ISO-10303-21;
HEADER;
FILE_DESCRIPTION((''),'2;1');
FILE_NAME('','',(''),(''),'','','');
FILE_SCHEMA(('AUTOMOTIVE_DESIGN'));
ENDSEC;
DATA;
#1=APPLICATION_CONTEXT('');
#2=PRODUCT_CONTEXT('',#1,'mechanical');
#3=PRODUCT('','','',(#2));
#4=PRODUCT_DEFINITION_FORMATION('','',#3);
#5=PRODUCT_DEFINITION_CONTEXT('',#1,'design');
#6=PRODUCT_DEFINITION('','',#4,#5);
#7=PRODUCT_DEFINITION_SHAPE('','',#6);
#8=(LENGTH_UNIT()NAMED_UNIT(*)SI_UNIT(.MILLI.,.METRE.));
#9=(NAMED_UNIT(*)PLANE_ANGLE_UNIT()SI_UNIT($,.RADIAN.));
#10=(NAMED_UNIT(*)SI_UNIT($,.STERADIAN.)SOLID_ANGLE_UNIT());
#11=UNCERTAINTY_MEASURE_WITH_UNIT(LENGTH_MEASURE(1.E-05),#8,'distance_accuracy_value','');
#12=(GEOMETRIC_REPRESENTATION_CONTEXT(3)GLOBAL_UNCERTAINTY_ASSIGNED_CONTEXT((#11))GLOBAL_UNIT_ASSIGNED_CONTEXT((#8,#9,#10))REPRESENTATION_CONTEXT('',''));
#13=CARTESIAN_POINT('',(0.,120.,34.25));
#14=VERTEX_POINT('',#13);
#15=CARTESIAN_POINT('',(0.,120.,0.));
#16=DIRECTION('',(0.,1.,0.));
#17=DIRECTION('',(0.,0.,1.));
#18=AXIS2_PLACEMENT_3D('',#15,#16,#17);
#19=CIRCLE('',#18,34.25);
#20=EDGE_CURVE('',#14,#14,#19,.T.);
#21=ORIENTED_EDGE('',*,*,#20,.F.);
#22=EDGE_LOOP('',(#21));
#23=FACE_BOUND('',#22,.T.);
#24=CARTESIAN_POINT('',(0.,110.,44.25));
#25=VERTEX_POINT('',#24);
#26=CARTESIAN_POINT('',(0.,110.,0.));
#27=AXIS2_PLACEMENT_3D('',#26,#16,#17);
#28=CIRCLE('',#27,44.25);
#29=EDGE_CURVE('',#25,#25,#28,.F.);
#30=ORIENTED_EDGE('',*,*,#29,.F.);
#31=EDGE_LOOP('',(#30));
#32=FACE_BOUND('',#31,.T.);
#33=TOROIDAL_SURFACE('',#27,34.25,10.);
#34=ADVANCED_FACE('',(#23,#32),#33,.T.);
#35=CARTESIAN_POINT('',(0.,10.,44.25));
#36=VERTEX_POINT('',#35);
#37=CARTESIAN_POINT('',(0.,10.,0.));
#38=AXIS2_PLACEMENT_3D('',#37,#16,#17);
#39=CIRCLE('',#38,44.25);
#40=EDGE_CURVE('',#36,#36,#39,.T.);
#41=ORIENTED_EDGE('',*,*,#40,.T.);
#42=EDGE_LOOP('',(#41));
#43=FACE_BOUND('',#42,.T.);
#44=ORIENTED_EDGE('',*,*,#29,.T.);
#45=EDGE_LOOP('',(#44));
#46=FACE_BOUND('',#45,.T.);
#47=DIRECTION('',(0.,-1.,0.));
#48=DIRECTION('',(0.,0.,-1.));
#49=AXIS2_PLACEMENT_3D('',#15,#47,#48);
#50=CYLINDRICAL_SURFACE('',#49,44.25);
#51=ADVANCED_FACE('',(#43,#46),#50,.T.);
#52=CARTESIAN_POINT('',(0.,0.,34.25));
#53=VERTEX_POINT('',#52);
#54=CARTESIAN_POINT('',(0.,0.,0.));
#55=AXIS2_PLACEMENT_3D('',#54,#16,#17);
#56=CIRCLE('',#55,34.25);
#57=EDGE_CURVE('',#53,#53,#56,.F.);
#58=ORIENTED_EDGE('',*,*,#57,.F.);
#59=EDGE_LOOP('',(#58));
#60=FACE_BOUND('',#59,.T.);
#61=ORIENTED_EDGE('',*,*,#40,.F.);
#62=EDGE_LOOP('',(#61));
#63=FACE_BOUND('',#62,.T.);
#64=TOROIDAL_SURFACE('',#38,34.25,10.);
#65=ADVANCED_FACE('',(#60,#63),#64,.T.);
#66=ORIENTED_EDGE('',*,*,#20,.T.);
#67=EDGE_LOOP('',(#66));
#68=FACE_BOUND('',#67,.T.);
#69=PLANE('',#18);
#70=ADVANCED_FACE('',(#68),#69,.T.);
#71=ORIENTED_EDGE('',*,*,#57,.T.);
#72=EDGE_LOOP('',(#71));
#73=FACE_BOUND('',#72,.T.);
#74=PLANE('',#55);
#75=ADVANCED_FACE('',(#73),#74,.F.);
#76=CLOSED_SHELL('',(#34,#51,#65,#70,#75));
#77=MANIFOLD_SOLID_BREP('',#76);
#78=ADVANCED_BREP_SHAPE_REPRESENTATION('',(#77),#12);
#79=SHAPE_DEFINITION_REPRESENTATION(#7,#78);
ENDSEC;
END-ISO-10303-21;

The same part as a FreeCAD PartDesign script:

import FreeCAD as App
import Part
import Sketcher

V = App.Vector
Q = App.Units.Quantity


def edges_at(feature, points):
    """Names of the edges that pass closest to the given points."""
    edges = feature.Shape.Edges
    near = lambda p: min(range(len(edges)), key=lambda i: edges[i].distToShape(Part.Vertex(*p))[0])
    return sorted({f"Edge{near(p) + 1}" for p in points})

doc = App.newDocument("Part")
body = doc.addObject("PartDesign::Body", "Body")

# Sketch on XZ plane
sketch1 = body.newObject("Sketcher::SketchObject", "Sketch")
sketch1.AttachmentSupport = (doc.getObject("XZ_Plane"), [""])
sketch1.MapMode = "FlatFace"
sketch1.addGeometry(Part.Circle(V(0, 0, 0), V(0, 0, 1), 44), False)
sketch1.addConstraint(Sketcher.Constraint("Coincident", 0, 3, -1, 1))
sketch1.addConstraint(Sketcher.Constraint("Diameter", 0, Q("88.5 mm")))
pad1 = body.newObject("PartDesign::Pad", "Pad")
pad1.Profile = sketch1
pad1.Length = 120
pad1.Reversed = True
doc.recompute()

fillet = body.newObject("PartDesign::Fillet", "Fillet")
fillet.Base = (pad1, edges_at(pad1, [(-44.25, 0, 0), (-44.25, 120, 0)]))
fillet.Radius = 10

doc.recompute()
